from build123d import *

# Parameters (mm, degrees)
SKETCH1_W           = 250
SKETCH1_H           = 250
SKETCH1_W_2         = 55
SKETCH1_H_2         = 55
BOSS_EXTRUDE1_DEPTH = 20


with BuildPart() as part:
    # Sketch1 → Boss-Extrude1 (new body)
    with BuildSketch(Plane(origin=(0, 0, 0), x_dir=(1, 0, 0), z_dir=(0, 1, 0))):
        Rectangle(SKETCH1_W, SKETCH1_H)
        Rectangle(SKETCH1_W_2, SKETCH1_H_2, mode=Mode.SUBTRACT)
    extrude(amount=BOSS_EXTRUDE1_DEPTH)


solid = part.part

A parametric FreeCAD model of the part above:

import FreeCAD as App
import Part
import Sketcher
from FreeCAD import Vector


def add_polygon(sketch, points):
    """Adds a closed chain of lines whose ends are joined by coincident constraints."""
    first, n = sketch.GeometryCount, len(points)
    for a, b in zip(points, points[1:] + points[:1]):
        sketch.addGeometry(Part.LineSegment(App.Vector(*a, 0), App.Vector(*b, 0)), False)
    for i in range(n):
        sketch.addConstraint(Sketcher.Constraint("Coincident", first + i, 2, first + (i + 1) % n, 1))

doc = App.newDocument("Part")
params = doc.addObject("Spreadsheet::Sheet", "Params")
for row, (alias, value) in enumerate([
    ("sketch1_width", "250 mm"),
    ("sketch1_width2", "55 mm"),
    ("pad1_length", "20 mm"),
], start=1):
    params.set(f"A{row}", alias)
    params.set(f"B{row}", "=" + value)
    params.setAlias(f"B{row}", alias)

body = doc.addObject("PartDesign::Body", "Body")

# Sketch on XZ plane
sketch1 = body.newObject("Sketcher::SketchObject", "Sketch")
sketch1.AttachmentSupport = (doc.getObject("XZ_Plane"), [""])
sketch1.MapMode = "FlatFace"
add_polygon(sketch1, [(-125, -125), (-125, 125), (125, 125), (125, -125)])  # lines 0-3
add_polygon(sketch1, [(27.5, 27.5), (-27.5, 27.5), (-27.5, -27.5), (27.5, -27.5)])  # lines 4-7
sketch1.addConstraint(Sketcher.Constraint("Vertical", 0))
sketch1.addConstraint(Sketcher.Constraint("Horizontal", 1))
sketch1.addConstraint(Sketcher.Constraint("Vertical", 2))
sketch1.addConstraint(Sketcher.Constraint("Horizontal", 3))
sketch1.addConstraint(Sketcher.Constraint("Horizontal", 4))
sketch1.addConstraint(Sketcher.Constraint("Vertical", 5))
sketch1.addConstraint(Sketcher.Constraint("Horizontal", 6))
sketch1.addConstraint(Sketcher.Constraint("Vertical", 7))
sketch1.addConstraint(Sketcher.Constraint("Symmetric", 0, 2, 2, 2, -1, 1))
sketch1.addConstraint(Sketcher.Constraint("Symmetric", 4, 2, 6, 2, -1, 1))
sketch1.addConstraint(Sketcher.Constraint("Equal", 3, 0))
sketch1.addConstraint(Sketcher.Constraint("Equal", 6, 5))
sketch1.addConstraint(Sketcher.Constraint("DistanceX", 1, 1, 1, 2, 250.0))
sketch1.addConstraint(Sketcher.Constraint("DistanceX", 4, 2, 4, 1, 55.0))
sketch1.setExpression("Constraints[20]", "Params.sketch1_width")
sketch1.setExpression("Constraints[21]", "Params.sketch1_width2")
pad1 = body.newObject("PartDesign::Pad", "Pad")
pad1.Profile = sketch1
pad1.setExpression("Length", "Params.pad1_length")
pad1.Reversed = True

doc.recompute()
